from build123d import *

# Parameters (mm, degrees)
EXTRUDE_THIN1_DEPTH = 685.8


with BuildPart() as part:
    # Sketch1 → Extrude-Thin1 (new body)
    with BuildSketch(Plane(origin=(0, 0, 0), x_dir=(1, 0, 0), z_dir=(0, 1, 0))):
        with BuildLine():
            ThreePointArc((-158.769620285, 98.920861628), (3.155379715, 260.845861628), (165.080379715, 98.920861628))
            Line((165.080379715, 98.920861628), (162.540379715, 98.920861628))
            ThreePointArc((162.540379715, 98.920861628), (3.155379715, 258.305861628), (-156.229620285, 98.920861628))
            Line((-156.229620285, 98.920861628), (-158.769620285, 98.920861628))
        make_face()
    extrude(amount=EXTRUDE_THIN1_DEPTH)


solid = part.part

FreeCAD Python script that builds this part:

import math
import FreeCAD as App
import Part
import Sketcher
Q = App.Units.Quantity

doc = App.newDocument("Part")
body = doc.addObject("PartDesign::Body", "Body")

# Sketch on XZ plane
sketch1 = doc.addObject("Sketcher::SketchObject", "Sketch")
body.addObject(sketch1)
sketch1.AttachmentSupport = (doc.XZ_Plane, [""])
sketch1.MapMode = "FlatFace"
sketch1.addGeometry([
    Part.ArcOfCircle(Part.Circle(App.Vector(3.2, -98.9, 0), App.Vector(0, 0, 1), 161.9), math.radians(180), math.radians(360)),
    Part.LineSegment(App.Vector(-158.8, -98.9, 0), App.Vector(-156.2, -98.9, 0)),
    Part.ArcOfCircle(Part.Circle(App.Vector(3.2, -98.9, 0), App.Vector(0, 0, 1), 159.4), math.radians(180), math.radians(360)),
    Part.LineSegment(App.Vector(162.5, -98.9, 0), App.Vector(165.1, -98.9, 0)),
], False)
sketch1.addConstraint([
    Sketcher.Constraint("Coincident", 0, 1, 1, 1),
    Sketcher.Constraint("Coincident", 1, 2, 2, 1),
    Sketcher.Constraint("Coincident", 2, 2, 3, 1),
    Sketcher.Constraint("Coincident", 3, 2, 0, 2),
    Sketcher.Constraint("Horizontal", 1),
    Sketcher.Constraint("Horizontal", 3),
    Sketcher.Constraint("Coincident", 2, 3, 0, 3),
    Sketcher.Constraint("Horizontal", 2, 3, 0, 1),
    Sketcher.Constraint("Horizontal", 1, 2, 2, 2),
    Sketcher.Constraint("DistanceX", 1, 1, 1, 2, Q("0.1 in")),
    Sketcher.Constraint("Radius", 0, Q("6.375 in")),
    Sketcher.Constraint("DistanceX", -1, 1, 0, 3, Q("3.15538 mm")),
    Sketcher.Constraint("DistanceY", 0, 3, -1, 1, Q("98.920862 mm")),
])
pad1 = doc.addObject("PartDesign::Pad", "Pad")
body.addObject(pad1)
pad1.Profile = sketch1
pad1.Length = Q("27 in")
pad1.Reversed = True

doc.recompute()
